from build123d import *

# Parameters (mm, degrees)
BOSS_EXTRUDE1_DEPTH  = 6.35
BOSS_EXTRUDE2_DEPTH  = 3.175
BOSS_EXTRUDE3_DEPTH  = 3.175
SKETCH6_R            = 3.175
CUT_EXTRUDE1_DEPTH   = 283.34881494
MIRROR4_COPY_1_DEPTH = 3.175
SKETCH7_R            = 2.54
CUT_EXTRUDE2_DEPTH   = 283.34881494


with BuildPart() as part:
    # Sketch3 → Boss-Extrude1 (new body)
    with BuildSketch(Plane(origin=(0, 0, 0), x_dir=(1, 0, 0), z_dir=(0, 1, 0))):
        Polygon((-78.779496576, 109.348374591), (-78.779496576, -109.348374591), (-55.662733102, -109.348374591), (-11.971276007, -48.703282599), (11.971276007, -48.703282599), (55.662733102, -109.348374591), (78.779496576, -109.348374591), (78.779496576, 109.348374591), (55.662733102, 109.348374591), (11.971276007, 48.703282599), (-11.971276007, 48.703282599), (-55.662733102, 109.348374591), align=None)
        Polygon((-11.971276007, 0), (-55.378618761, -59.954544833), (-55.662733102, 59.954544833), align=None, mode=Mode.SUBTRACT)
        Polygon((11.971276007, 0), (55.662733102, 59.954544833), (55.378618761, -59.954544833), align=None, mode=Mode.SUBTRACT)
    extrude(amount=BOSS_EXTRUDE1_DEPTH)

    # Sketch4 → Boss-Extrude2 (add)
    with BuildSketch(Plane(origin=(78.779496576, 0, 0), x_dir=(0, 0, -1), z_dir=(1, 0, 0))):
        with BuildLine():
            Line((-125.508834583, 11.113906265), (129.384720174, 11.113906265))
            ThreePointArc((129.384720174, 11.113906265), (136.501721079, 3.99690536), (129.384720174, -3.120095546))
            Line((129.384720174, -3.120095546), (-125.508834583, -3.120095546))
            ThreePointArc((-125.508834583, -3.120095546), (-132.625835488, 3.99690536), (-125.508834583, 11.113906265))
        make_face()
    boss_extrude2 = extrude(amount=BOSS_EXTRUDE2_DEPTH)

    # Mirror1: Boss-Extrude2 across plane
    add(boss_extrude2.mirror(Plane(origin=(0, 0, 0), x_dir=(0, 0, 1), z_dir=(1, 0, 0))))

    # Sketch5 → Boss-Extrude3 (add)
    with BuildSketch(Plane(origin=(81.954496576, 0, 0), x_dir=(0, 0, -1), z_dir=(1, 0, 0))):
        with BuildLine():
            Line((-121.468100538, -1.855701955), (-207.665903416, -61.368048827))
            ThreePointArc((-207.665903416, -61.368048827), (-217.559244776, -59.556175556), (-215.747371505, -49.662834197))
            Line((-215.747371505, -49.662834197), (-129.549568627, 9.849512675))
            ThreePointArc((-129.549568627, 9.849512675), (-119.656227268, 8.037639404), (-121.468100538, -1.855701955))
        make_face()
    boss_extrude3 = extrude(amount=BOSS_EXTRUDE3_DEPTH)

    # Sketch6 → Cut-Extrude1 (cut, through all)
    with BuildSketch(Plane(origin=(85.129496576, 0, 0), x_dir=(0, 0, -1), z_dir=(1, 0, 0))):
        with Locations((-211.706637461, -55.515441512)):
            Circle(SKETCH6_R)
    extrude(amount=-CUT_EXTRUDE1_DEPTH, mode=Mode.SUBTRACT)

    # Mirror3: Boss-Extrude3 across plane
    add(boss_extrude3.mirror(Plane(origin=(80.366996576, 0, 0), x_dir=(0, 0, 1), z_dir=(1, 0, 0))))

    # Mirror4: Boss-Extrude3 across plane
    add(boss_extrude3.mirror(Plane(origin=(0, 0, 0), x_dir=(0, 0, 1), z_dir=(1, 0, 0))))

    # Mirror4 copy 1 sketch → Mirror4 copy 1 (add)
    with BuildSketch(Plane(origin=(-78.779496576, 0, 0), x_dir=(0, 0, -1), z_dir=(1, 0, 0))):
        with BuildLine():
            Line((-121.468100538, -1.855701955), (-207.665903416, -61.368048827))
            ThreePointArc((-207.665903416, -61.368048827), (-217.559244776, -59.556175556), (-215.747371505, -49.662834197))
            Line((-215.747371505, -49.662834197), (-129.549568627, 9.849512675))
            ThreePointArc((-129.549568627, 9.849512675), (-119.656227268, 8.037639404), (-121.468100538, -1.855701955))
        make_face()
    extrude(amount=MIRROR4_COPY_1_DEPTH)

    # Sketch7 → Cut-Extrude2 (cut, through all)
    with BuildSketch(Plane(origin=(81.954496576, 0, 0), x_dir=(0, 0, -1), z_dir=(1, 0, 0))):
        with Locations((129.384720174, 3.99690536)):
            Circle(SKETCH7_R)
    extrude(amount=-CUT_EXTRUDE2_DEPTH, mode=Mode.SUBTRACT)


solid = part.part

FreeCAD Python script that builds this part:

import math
import FreeCAD as App
import Part
import Sketcher
Q = App.Units.Quantity

doc = App.newDocument("Part")
params = doc.addObject("Spreadsheet::Sheet", "Params")
for row, (alias, value) in enumerate([
    ("pad1_length", "0.25 in"),
    ("pad2_length", "0.125 in"),
    ("sketch3_radius", "0.28 in"),
    ("pad3_length", "0.125 in"),
    ("sketch4_diameter", "0.25 in"),
    ("sketch5_radius", "0.28 in"),
    ("pad4_length", "0.125 in"),
    ("sketch6_diameter", "0.2 in"),
], start=1):
    params.set(f"A{row}", alias)
    params.set(f"B{row}", "=" + value)
    params.setAlias(f"B{row}", alias)

body = doc.addObject("PartDesign::Body", "Body")

sketch1 = doc.addObject("Sketcher::SketchObject", "Sketch")
body.addObject(sketch1)
sketch1.AttachmentSupport = (doc.XZ_Plane, [""])
sketch1.MapMode = "FlatFace"
sketch1.addGeometry(Part.LineSegment(App.Vector(-79, -109, 0), App.Vector(-79, 109, 0)), False)
sketch1.addGeometry(Part.LineSegment(App.Vector(-79, 109, 0), App.Vector(-56, 109, 0)), False)
sketch1.addGeometry(Part.LineSegment(App.Vector(-56, 109, 0), App.Vector(-12, 49, 0)), False)
sketch1.addGeometry(Part.LineSegment(App.Vector(-12, 49, 0), App.Vector(12, 49, 0)), False)
sketch1.addGeometry(Part.LineSegment(App.Vector(12, 49, 0), App.Vector(56, 109, 0)), False)
sketch1.addGeometry(Part.LineSegment(App.Vector(56, 109, 0), App.Vector(79, 109, 0)), False)
sketch1.addGeometry(Part.LineSegment(App.Vector(79, 109, 0), App.Vector(79, -109, 0)), False)
sketch1.addGeometry(Part.LineSegment(App.Vector(79, -109, 0), App.Vector(56, -109, 0)), False)
sketch1.addGeometry(Part.LineSegment(App.Vector(56, -109, 0), App.Vector(12, -49, 0)), False)
sketch1.addGeometry(Part.LineSegment(App.Vector(12, -49, 0), App.Vector(-12, -49, 0)), False)
sketch1.addGeometry(Part.LineSegment(App.Vector(-12, -49, 0), App.Vector(-56, -109, 0)), False)
sketch1.addGeometry(Part.LineSegment(App.Vector(-56, -109, 0), App.Vector(-79, -109, 0)), False)
sketch1.addGeometry(Part.LineSegment(App.Vector(-56, -60, 0), App.Vector(-12, 0, 0)), False)
sketch1.addGeometry(Part.LineSegment(App.Vector(-12, 0, 0), App.Vector(-55, 60, 0)), False)
sketch1.addGeometry(Part.LineSegment(App.Vector(-55, 60, 0), App.Vector(-56, -60, 0)), False)
sketch1.addGeometry(Part.LineSegment(App.Vector(55, 60, 0), App.Vector(12, 0, 0)), False)
sketch1.addGeometry(Part.LineSegment(App.Vector(12, 0, 0), App.Vector(56, -60, 0)), False)
sketch1.addGeometry(Part.LineSegment(App.Vector(56, -60, 0), App.Vector(55, 60, 0)), False)
sketch1.addConstraint(Sketcher.Constraint("Coincident", 0, 2, 1, 1))
sketch1.addConstraint(Sketcher.Constraint("Coincident", 1, 2, 2, 1))
sketch1.addConstraint(Sketcher.Constraint("Coincident", 2, 2, 3, 1))
sketch1.addConstraint(Sketcher.Constraint("Coincident", 3, 2, 4, 1))
sketch1.addConstraint(Sketcher.Constraint("Coincident", 4, 2, 5, 1))
sketch1.addConstraint(Sketcher.Constraint("Coincident", 5, 2, 6, 1))
sketch1.addConstraint(Sketcher.Constraint("Coincident", 6, 2, 7, 1))
sketch1.addConstraint(Sketcher.Constraint("Coincident", 7, 2, 8, 1))
sketch1.addConstraint(Sketcher.Constraint("Coincident", 8, 2, 9, 1))
sketch1.addConstraint(Sketcher.Constraint("Coincident", 9, 2, 10, 1))
sketch1.addConstraint(Sketcher.Constraint("Coincident", 10, 2, 11, 1))
sketch1.addConstraint(Sketcher.Constraint("Coincident", 11, 2, 0, 1))
sketch1.addConstraint(Sketcher.Constraint("Coincident", 12, 2, 13, 1))
sketch1.addConstraint(Sketcher.Constraint("Coincident", 13, 2, 14, 1))
sketch1.addConstraint(Sketcher.Constraint("Coincident", 14, 2, 12, 1))
sketch1.addConstraint(Sketcher.Constraint("Coincident", 15, 2, 16, 1))
sketch1.addConstraint(Sketcher.Constraint("Coincident", 16, 2, 17, 1))
sketch1.addConstraint(Sketcher.Constraint("Coincident", 17, 2, 15, 1))
sketch1.addConstraint(Sketcher.Constraint("Vertical", 0))
sketch1.addConstraint(Sketcher.Constraint("Horizontal", 1))
sketch1.addConstraint(Sketcher.Constraint("Horizontal", 3))
sketch1.addConstraint(Sketcher.Constraint("Horizontal", 5))
sketch1.addConstraint(Sketcher.Constraint("Vertical", 6))
sketch1.addConstraint(Sketcher.Constraint("Horizontal", 7))
sketch1.addConstraint(Sketcher.Constraint("Horizontal", 9))
sketch1.addConstraint(Sketcher.Constraint("Horizontal", 11))
sketch1.addConstraint(Sketcher.Constraint("Symmetric", 0, 2, 6, 2, -1, 1))
sketch1.addConstraint(Sketcher.Constraint("Symmetric", 2, 2, 8, 2, -1, 1))
sketch1.addConstraint(Sketcher.Constraint("Symmetric", 4, 2, 10, 2, -1, 1))
sketch1.addConstraint(Sketcher.Constraint("Symmetric", 12, 2, 15, 2, -1, 1))
sketch1.addConstraint(Sketcher.Constraint("Symmetric", 1, 2, 4, 2, -2))
sketch1.addConstraint(Sketcher.Constraint("Symmetric", 14, 2, 16, 2, -2))
sketch1.addConstraint(Sketcher.Constraint("Symmetric", 13, 2, 17, 2, -2))
sketch1.addConstraint(Sketcher.Constraint("PointOnObject", 12, 2, -1))
sketch1.addConstraint(Sketcher.Constraint("Parallel", 2, 8))
sketch1.addConstraint(Sketcher.Constraint("Parallel", 4, 10))
sketch1.addConstraint(Sketcher.Constraint("Vertical", 3, 2, 8, 2))
sketch1.addConstraint(Sketcher.Constraint("Vertical", 9, 2, 12, 2))
sketch1.addConstraint(Sketcher.Constraint("Vertical", 10, 2, 14, 2))
sketch1.addConstraint(Sketcher.Constraint("DistanceY", 0, 1, 0, 2, 218.696749))
sketch1.addConstraint(Sketcher.Constraint("DistanceX", 1, 1, 1, 2, 23.116763))
sketch1.addConstraint(Sketcher.Constraint("DistanceX", 3, 1, 3, 2, 23.942552))
sketch1.addConstraint(Sketcher.Constraint("DistanceX", 13, 2, -1, 1, 55.378619))
sketch1.addConstraint(Sketcher.Constraint("DistanceY", 2, 2, 1, 2, 60.645092))
sketch1.addConstraint(Sketcher.Constraint("DistanceX", 0, 2, 2, 2, 66.808221))
sketch1.addConstraint(Sketcher.Constraint("DistanceY", 13, 2, 1, 2, 49.39383))
sketch1.addConstraint(Sketcher.Constraint("DistanceY", 10, 2, 14, 2, 49.39383))
pad1 = doc.addObject("PartDesign::Pad", "Pad")
body.addObject(pad1)
pad1.Profile = sketch1
pad1.setExpression("Length", "Params.pad1_length")
pad1.Reversed = True

sketch2 = doc.addObject("Sketcher::SketchObject", "Sketch001")
body.addObject(sketch2)
sketch2.AttachmentSupport = (doc.YZ_Plane, [""])
sketch2.MapMode = "FlatFace"
sketch2.AttachmentOffset = App.Placement(App.Vector(0, 0, 78.779497), App.Rotation())
sketch2.addGeometry(Part.LineSegment(App.Vector(11, -129, 0), App.Vector(11, 126, 0)), False)
sketch2.addGeometry(Part.ArcOfCircle(Part.Circle(App.Vector(4, 126, 0), App.Vector(0, 0, 1), 7), math.radians(0), math.radians(180)), False)
sketch2.addGeometry(Part.LineSegment(App.Vector(-3, 126, 0), App.Vector(-3, -129, 0)), False)
sketch2.addGeometry(Part.ArcOfCircle(Part.Circle(App.Vector(4, -129, 0), App.Vector(0, 0, 1), 7), math.radians(-180), math.radians(0)), False)
sketch2.addConstraint(Sketcher.Constraint("Tangent", 0, 2, 1, 1))
sketch2.addConstraint(Sketcher.Constraint("Tangent", 1, 2, 2, 1))
sketch2.addConstraint(Sketcher.Constraint("Tangent", 2, 2, 3, 1))
sketch2.addConstraint(Sketcher.Constraint("Tangent", 3, 2, 0, 1))
sketch2.addConstraint(Sketcher.Constraint("Vertical", 0))
sketch2.addConstraint(Sketcher.Constraint("Vertical", 2))
sketch2.addConstraint(Sketcher.Constraint("Radius", 1, 7.117001))
sketch2.addConstraint(Sketcher.Constraint("DistanceY", 0, 1, 0, 2, 254.893555))
sketch2.addConstraint(Sketcher.Constraint("DistanceY", 3, 3, -1, 1, 129.38472))
sketch2.addConstraint(Sketcher.Constraint("DistanceX", -1, 1, 1, 3, 3.996905))
pad2 = doc.addObject("PartDesign::Pad", "Pad001")
body.addObject(pad2)
pad2.Profile = sketch2
pad2.setExpression("Length", "Params.pad2_length")
doc.recompute()

mirrored = doc.addObject("PartDesign::Mirrored", "Mirrored")
body.addObject(mirrored)
mirrored.Originals = [pad2]
mirrored.MirrorPlane = (doc.YZ_Plane, [""])
body.Tip = mirrored

sketch3 = doc.addObject("Sketcher::SketchObject", "Sketch002")
body.addObject(sketch3)
sketch3.AttachmentSupport = (doc.YZ_Plane, [""])
sketch3.MapMode = "FlatFace"
sketch3.AttachmentOffset = App.Placement(App.Vector(0, 0, 81.954497), App.Rotation())
sketch3.addGeometry(Part.LineSegment(App.Vector(-61, 208, 0), App.Vector(-2, 121, 0)), False)
sketch3.addGeometry(Part.ArcOfCircle(Part.Circle(App.Vector(4, 126, 0), App.Vector(0, 0, 1), 7), math.radians(-145), math.radians(35)), False)
sketch3.addGeometry(Part.LineSegment(App.Vector(10, 130, 0), App.Vector(-50, 216, 0)), False)
sketch3.addGeometry(Part.ArcOfCircle(Part.Circle(App.Vector(-56, 212, 0), App.Vector(0, 0, 1), 7), math.radians(35), math.radians(215)), False)
sketch3.addConstraint(Sketcher.Constraint("Tangent", 0, 2, 1, 1))
sketch3.addConstraint(Sketcher.Constraint("Tangent", 1, 2, 2, 1))
sketch3.addConstraint(Sketcher.Constraint("Tangent", 2, 2, 3, 1))
sketch3.addConstraint(Sketcher.Constraint("Tangent", 3, 2, 0, 1))
sketch3.addConstraint(Sketcher.Constraint("Equal", 1, 3))
sketch3.addConstraint(Sketcher.Constraint("Radius", 1, Q("0.28 in")))
sketch3.addConstraint(Sketcher.Constraint("DistanceX", 0, 2, -1, 1, 1.855702))
sketch3.addConstraint(Sketcher.Constraint("DistanceY", -1, 1, 0, 2, 121.468101))
sketch3.addConstraint(Sketcher.Constraint("DistanceX", 3, 3, -1, 1, 55.515442))
sketch3.addConstraint(Sketcher.Constraint("DistanceY", -1, 1, 1, 2, 129.549569))
sketch3.setExpression("Constraints[5]", "Params.sketch3_radius")
pad3 = doc.addObject("PartDesign::Pad", "Pad002")
body.addObject(pad3)
pad3.Profile = sketch3
pad3.setExpression("Length", "Params.pad3_length")

sketch4 = doc.addObject("Sketcher::SketchObject", "Sketch003")
body.addObject(sketch4)
sketch4.AttachmentSupport = (doc.YZ_Plane, [""])
sketch4.MapMode = "FlatFace"
sketch4.AttachmentOffset = App.Placement(App.Vector(0, 0, 85.129497), App.Rotation())
sketch4.addGeometry(Part.Circle(App.Vector(-55.5, 211.7, 0), App.Vector(0, 0, 1), 3.2), False)
sketch4.addConstraint(Sketcher.Constraint("Diameter", 0, Q("0.25 in")))
sketch4.addConstraint(Sketcher.Constraint("DistanceX", 0, 3, -1, 1, 55.515442))
sketch4.addConstraint(Sketcher.Constraint("DistanceY", -1, 1, 0, 3, 211.706637))
sketch4.setExpression("Constraints[0]", "Params.sketch4_diameter")
pocket1 = doc.addObject("PartDesign::Pocket", "Pocket")
body.addObject(pocket1)
pocket1.Profile = sketch4
pocket1.Type = "ThroughAll"
doc.recompute()

datumplane = doc.addObject("PartDesign::Plane", "DatumPlane")
body.addObject(datumplane)
datumplane.AttachmentSupport = (doc.YZ_Plane, [""])
datumplane.MapMode = "FlatFace"
datumplane.AttachmentOffset = App.Placement(App.Vector(0, 0, 80.366997), App.Rotation())
mirrored2 = doc.addObject("PartDesign::Mirrored", "Mirrored001")
body.addObject(mirrored2)
mirrored2.Originals = [pad3]
mirrored2.MirrorPlane = (datumplane, [""])
body.Tip = mirrored2
doc.recompute()

mirrored3 = doc.addObject("PartDesign::Mirrored", "Mirrored002")
body.addObject(mirrored3)
mirrored3.Originals = [pad3]
mirrored3.MirrorPlane = (doc.YZ_Plane, [""])
body.Tip = mirrored3

sketch5 = doc.addObject("Sketcher::SketchObject", "Sketch004")
body.addObject(sketch5)
sketch5.AttachmentSupport = (doc.YZ_Plane, [""])
sketch5.MapMode = "FlatFace"
sketch5.AttachmentOffset = App.Placement(App.Vector(0, 0, -78.779497), App.Rotation())
sketch5.addGeometry(Part.LineSegment(App.Vector(-61, 208, 0), App.Vector(-2, 121, 0)), False)
sketch5.addGeometry(Part.ArcOfCircle(Part.Circle(App.Vector(4, 126, 0), App.Vector(0, 0, 1), 7), math.radians(-145), math.radians(35)), False)
sketch5.addGeometry(Part.LineSegment(App.Vector(10, 130, 0), App.Vector(-50, 216, 0)), False)
sketch5.addGeometry(Part.ArcOfCircle(Part.Circle(App.Vector(-56, 212, 0), App.Vector(0, 0, 1), 7), math.radians(35), math.radians(215)), False)
sketch5.addConstraint(Sketcher.Constraint("Tangent", 0, 2, 1, 1))
sketch5.addConstraint(Sketcher.Constraint("Tangent", 1, 2, 2, 1))
sketch5.addConstraint(Sketcher.Constraint("Tangent", 2, 2, 3, 1))
sketch5.addConstraint(Sketcher.Constraint("Tangent", 3, 2, 0, 1))
sketch5.addConstraint(Sketcher.Constraint("Equal", 1, 3))
sketch5.addConstraint(Sketcher.Constraint("Radius", 1, Q("0.28 in")))
sketch5.addConstraint(Sketcher.Constraint("DistanceX", 0, 2, -1, 1, 1.855702))
sketch5.addConstraint(Sketcher.Constraint("DistanceY", -1, 1, 0, 2, 121.468101))
sketch5.addConstraint(Sketcher.Constraint("DistanceX", 3, 3, -1, 1, 55.515442))
sketch5.addConstraint(Sketcher.Constraint("DistanceY", -1, 1, 1, 2, 129.549569))
sketch5.setExpression("Constraints[5]", "Params.sketch5_radius")
pad4 = doc.addObject("PartDesign::Pad", "Pad003")
body.addObject(pad4)
pad4.Profile = sketch5
pad4.setExpression("Length", "Params.pad4_length")

sketch6 = doc.addObject("Sketcher::SketchObject", "Sketch005")
body.addObject(sketch6)
sketch6.AttachmentSupport = (doc.YZ_Plane, [""])
sketch6.MapMode = "FlatFace"
sketch6.AttachmentOffset = App.Placement(App.Vector(0, 0, 81.954497), App.Rotation())
sketch6.addGeometry(Part.Circle(App.Vector(4, -129.4, 0), App.Vector(0, 0, 1), 2.5), False)
sketch6.addConstraint(Sketcher.Constraint("Diameter", 0, Q("0.2 in")))
sketch6.addConstraint(Sketcher.Constraint("DistanceY", 0, 3, -1, 1, 129.38472))
sketch6.addConstraint(Sketcher.Constraint("DistanceX", -1, 1, 0, 3, 3.996905))
sketch6.setExpression("Constraints[0]", "Params.sketch6_diameter")
pocket2 = doc.addObject("PartDesign::Pocket", "Pocket001")
body.addObject(pocket2)
pocket2.Profile = sketch6
pocket2.Type = "ThroughAll"

doc.recompute()
